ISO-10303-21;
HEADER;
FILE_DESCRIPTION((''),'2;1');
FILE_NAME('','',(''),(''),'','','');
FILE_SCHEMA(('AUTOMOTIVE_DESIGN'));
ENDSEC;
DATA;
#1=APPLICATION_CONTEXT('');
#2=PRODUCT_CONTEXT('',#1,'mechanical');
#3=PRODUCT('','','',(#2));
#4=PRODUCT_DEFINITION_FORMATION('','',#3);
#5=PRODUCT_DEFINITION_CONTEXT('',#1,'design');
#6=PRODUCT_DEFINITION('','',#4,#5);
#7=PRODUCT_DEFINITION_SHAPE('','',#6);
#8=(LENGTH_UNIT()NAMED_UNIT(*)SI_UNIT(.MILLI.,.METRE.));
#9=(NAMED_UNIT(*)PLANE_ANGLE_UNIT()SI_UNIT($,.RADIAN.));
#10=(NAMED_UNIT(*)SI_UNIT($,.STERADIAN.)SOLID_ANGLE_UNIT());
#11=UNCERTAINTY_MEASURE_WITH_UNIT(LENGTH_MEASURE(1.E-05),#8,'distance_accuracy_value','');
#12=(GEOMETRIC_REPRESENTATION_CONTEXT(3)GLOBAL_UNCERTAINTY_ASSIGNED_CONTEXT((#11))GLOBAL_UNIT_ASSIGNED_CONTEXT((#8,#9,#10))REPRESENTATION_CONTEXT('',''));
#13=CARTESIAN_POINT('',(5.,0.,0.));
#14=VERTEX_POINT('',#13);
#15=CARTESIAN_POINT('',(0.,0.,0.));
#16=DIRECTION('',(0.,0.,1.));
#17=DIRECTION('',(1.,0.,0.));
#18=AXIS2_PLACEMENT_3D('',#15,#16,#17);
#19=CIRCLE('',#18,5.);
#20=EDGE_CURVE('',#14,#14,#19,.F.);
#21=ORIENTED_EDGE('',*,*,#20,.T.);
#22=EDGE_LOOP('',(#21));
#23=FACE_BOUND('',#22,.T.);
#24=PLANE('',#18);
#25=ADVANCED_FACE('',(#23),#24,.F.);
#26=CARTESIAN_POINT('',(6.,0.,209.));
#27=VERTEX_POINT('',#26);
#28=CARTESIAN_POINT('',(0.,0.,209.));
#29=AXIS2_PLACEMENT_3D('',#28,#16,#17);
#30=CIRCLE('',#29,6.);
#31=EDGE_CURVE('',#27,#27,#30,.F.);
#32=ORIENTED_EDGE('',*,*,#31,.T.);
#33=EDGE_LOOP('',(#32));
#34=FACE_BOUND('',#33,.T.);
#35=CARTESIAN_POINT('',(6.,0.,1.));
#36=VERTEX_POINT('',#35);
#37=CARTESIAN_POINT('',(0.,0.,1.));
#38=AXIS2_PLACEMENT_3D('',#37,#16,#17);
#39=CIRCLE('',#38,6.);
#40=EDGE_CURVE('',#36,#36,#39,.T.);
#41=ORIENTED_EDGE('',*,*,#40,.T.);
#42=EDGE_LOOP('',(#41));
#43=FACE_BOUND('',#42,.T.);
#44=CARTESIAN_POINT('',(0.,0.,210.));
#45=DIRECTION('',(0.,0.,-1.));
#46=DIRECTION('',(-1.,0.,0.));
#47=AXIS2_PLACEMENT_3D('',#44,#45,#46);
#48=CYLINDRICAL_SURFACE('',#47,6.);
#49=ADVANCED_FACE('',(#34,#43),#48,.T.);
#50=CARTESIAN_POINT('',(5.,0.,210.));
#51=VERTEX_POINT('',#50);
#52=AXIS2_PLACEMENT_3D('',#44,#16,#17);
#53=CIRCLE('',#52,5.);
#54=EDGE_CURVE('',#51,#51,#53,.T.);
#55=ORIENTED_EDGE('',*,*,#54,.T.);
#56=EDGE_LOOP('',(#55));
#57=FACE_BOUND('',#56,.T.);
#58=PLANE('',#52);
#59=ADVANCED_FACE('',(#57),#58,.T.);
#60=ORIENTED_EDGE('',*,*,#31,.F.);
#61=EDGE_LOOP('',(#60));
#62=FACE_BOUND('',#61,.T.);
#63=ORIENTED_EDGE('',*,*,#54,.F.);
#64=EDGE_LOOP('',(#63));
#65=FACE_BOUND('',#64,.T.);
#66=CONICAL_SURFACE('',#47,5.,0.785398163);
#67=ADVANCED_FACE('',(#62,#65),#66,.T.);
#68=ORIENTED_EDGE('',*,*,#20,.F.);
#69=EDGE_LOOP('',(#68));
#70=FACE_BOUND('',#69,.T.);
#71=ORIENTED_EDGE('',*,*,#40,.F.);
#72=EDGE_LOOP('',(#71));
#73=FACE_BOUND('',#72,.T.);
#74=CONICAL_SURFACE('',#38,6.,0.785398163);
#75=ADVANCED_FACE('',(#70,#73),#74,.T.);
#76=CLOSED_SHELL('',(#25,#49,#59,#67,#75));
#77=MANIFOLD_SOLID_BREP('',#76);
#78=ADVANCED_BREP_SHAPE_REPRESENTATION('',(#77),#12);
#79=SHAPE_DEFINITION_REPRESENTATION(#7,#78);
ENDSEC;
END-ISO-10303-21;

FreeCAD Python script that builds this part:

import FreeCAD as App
import Part
import Sketcher

V = App.Vector
Q = App.Units.Quantity


def edges_at(feature, points):
    """Names of the edges that pass closest to the given points."""
    edges = feature.Shape.Edges
    near = lambda p: min(range(len(edges)), key=lambda i: edges[i].distToShape(Part.Vertex(*p))[0])
    return sorted({f"Edge{near(p) + 1}" for p in points})

doc = App.newDocument("Part")
body = doc.addObject("PartDesign::Body", "Body")

# Sketch on XY plane
sketch1 = body.newObject("Sketcher::SketchObject", "Sketch")
sketch1.AttachmentSupport = (doc.getObject("XY_Plane"), [""])
sketch1.MapMode = "FlatFace"
sketch1.addGeometry(Part.Circle(V(0, 0, 0), V(0, 0, 1), 6), False)
sketch1.addConstraint(Sketcher.Constraint("Coincident", 0, 3, -1, 1))
sketch1.addConstraint(Sketcher.Constraint("Diameter", 0, Q("12 mm")))
pad1 = body.newObject("PartDesign::Pad", "Pad")
pad1.Profile = sketch1
pad1.Length = 210
doc.recompute()

chamfer = body.newObject("PartDesign::Chamfer", "Chamfer")
chamfer.Base = (pad1, edges_at(pad1, [(-6, 0, 0), (-6, 0, 210)]))
chamfer.Size = 1

doc.recompute()
